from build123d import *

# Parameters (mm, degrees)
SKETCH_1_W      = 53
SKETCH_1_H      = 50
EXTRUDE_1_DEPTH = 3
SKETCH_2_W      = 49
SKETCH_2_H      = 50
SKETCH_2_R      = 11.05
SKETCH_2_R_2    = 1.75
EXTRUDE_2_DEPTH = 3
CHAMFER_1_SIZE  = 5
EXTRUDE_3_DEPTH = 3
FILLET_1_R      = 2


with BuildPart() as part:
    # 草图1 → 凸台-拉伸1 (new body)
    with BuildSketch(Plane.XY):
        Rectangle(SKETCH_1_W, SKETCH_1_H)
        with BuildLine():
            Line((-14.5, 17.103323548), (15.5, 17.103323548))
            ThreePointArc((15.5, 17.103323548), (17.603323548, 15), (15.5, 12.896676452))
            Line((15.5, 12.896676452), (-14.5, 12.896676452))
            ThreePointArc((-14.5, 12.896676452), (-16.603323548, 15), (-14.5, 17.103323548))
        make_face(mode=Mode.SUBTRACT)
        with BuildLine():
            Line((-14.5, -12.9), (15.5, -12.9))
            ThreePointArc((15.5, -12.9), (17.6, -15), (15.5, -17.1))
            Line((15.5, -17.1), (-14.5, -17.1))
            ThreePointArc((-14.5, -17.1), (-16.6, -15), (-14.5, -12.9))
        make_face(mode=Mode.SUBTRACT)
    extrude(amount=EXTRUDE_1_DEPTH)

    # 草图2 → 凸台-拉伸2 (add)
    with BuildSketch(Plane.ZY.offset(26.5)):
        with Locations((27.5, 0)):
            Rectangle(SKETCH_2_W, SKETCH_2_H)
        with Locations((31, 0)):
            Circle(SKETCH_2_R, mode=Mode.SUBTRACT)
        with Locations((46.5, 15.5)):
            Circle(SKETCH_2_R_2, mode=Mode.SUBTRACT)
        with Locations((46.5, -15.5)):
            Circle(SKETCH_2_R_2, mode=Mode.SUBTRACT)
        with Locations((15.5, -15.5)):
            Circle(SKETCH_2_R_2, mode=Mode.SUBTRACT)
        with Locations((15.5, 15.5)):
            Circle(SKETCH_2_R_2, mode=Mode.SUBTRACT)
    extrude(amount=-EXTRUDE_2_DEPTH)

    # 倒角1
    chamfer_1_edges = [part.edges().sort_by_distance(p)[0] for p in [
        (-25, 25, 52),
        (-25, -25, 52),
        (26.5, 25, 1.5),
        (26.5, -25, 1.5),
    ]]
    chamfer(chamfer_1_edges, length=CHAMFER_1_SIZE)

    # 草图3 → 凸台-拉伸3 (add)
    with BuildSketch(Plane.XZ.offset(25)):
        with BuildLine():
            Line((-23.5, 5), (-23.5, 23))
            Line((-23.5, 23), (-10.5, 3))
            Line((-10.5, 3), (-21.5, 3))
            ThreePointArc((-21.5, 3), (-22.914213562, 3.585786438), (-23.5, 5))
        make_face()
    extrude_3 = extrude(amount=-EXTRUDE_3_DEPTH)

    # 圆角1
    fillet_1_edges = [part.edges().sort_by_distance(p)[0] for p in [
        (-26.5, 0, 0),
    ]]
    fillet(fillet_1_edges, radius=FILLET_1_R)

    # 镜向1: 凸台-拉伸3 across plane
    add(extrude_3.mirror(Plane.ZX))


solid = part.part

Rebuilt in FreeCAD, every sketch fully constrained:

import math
import FreeCAD as App
import Part
import Sketcher
Q = App.Units.Quantity


def edges_at(feature, points):
    """Names of the edges that pass closest to the given points."""
    edges = feature.Shape.Edges
    near = lambda p: min(range(len(edges)), key=lambda i: edges[i].distToShape(Part.Vertex(*p))[0])
    return sorted({f"Edge{near(p) + 1}" for p in points})

doc = App.newDocument("Part")
body = doc.addObject("PartDesign::Body", "Body")

sketch1 = doc.addObject("Sketcher::SketchObject", "Sketch")
body.addObject(sketch1)
sketch1.AttachmentSupport = (doc.XY_Plane, [""])
sketch1.MapMode = "FlatFace"
sketch1.addGeometry(Part.LineSegment(App.Vector(-26.5, 25, 0), App.Vector(-26.5, -25, 0)), False)
sketch1.addGeometry(Part.LineSegment(App.Vector(-26.5, -25, 0), App.Vector(26.5, -25, 0)), False)
sketch1.addGeometry(Part.LineSegment(App.Vector(26.5, -25, 0), App.Vector(26.5, 25, 0)), False)
sketch1.addGeometry(Part.LineSegment(App.Vector(26.5, 25, 0), App.Vector(-26.5, 25, 0)), False)
sketch1.addGeometry(Part.ArcOfCircle(Part.Circle(App.Vector(-14.5, -15, 0), App.Vector(0, 0, 1), 2.1), math.radians(90), math.radians(270)), False)
sketch1.addGeometry(Part.LineSegment(App.Vector(-14.5, -12.9, 0), App.Vector(15.5, -12.9, 0)), False)
sketch1.addGeometry(Part.ArcOfCircle(Part.Circle(App.Vector(15.5, -15, 0), App.Vector(0, 0, 1), 2.1), math.radians(-90), math.radians(90)), False)
sketch1.addGeometry(Part.LineSegment(App.Vector(15.5, -17.1, 0), App.Vector(-14.5, -17.1, 0)), False)
sketch1.addGeometry(Part.ArcOfCircle(Part.Circle(App.Vector(-14.5, 15, 0), App.Vector(0, 0, 1), 2.103324), math.radians(90), math.radians(270)), False)
sketch1.addGeometry(Part.LineSegment(App.Vector(-14.5, 17.103324, 0), App.Vector(15.5, 17.103324, 0)), False)
sketch1.addGeometry(Part.ArcOfCircle(Part.Circle(App.Vector(15.5, 15, 0), App.Vector(0, 0, 1), 2.103324), math.radians(-90), math.radians(90)), False)
sketch1.addGeometry(Part.LineSegment(App.Vector(15.5, 12.896676, 0), App.Vector(-14.5, 12.896676, 0)), False)
sketch1.addConstraint(Sketcher.Constraint("Coincident", 0, 2, 1, 1))
sketch1.addConstraint(Sketcher.Constraint("Coincident", 1, 2, 2, 1))
sketch1.addConstraint(Sketcher.Constraint("Coincident", 2, 2, 3, 1))
sketch1.addConstraint(Sketcher.Constraint("Coincident", 3, 2, 0, 1))
sketch1.addConstraint(Sketcher.Constraint("Tangent", 4, 1, 5, 1))
sketch1.addConstraint(Sketcher.Constraint("Tangent", 5, 2, 6, 2))
sketch1.addConstraint(Sketcher.Constraint("Tangent", 6, 1, 7, 1))
sketch1.addConstraint(Sketcher.Constraint("Tangent", 7, 2, 4, 2))
sketch1.addConstraint(Sketcher.Constraint("Tangent", 8, 1, 9, 1))
sketch1.addConstraint(Sketcher.Constraint("Tangent", 9, 2, 10, 2))
sketch1.addConstraint(Sketcher.Constraint("Tangent", 10, 1, 11, 1))
sketch1.addConstraint(Sketcher.Constraint("Tangent", 11, 2, 8, 2))
sketch1.addConstraint(Sketcher.Constraint("Vertical", 0))
sketch1.addConstraint(Sketcher.Constraint("Horizontal", 1))
sketch1.addConstraint(Sketcher.Constraint("Vertical", 2))
sketch1.addConstraint(Sketcher.Constraint("Horizontal", 3))
sketch1.addConstraint(Sketcher.Constraint("Horizontal", 5))
sketch1.addConstraint(Sketcher.Constraint("Horizontal", 7))
sketch1.addConstraint(Sketcher.Constraint("Horizontal", 9))
sketch1.addConstraint(Sketcher.Constraint("Horizontal", 11))
sketch1.addConstraint(Sketcher.Constraint("Symmetric", 0, 2, 2, 2, -1, 1))
sketch1.addConstraint(Sketcher.Constraint("Symmetric", 4, 3, 8, 3, -1))
sketch1.addConstraint(Sketcher.Constraint("Vertical", 6, 3, 10, 3))
sketch1.addConstraint(Sketcher.Constraint("Radius", 4, Q("2.1 mm")))
sketch1.addConstraint(Sketcher.Constraint("DistanceX", 1, 1, 1, 2, Q("53 mm")))
sketch1.addConstraint(Sketcher.Constraint("DistanceX", 5, 1, 5, 2, Q("30 mm")))
sketch1.addConstraint(Sketcher.Constraint("DistanceY", 0, 2, 0, 1, Q("50 mm")))
sketch1.addConstraint(Sketcher.Constraint("DistanceY", 4, 3, -1, 1, Q("15 mm")))
sketch1.addConstraint(Sketcher.Constraint("DistanceX", 0, 2, 4, 3, Q("12 mm")))
sketch1.addConstraint(Sketcher.Constraint("Radius", 8, Q("2.103324 mm")))
pad1 = doc.addObject("PartDesign::Pad", "Pad")
body.addObject(pad1)
pad1.Profile = sketch1
pad1.Length = 3

sketch2 = doc.addObject("Sketcher::SketchObject", "Sketch001")
body.addObject(sketch2)
sketch2.AttachmentSupport = (doc.YZ_Plane, [""])
sketch2.MapMode = "FlatFace"
sketch2.AttachmentOffset = App.Placement(App.Vector(0, 0, -26.5), App.Rotation())
sketch2.addGeometry(Part.LineSegment(App.Vector(25, 3, 0), App.Vector(-25, 3, 0)), False)
sketch2.addGeometry(Part.LineSegment(App.Vector(-25, 3, 0), App.Vector(-25, 52, 0)), False)
sketch2.addGeometry(Part.LineSegment(App.Vector(-25, 52, 0), App.Vector(25, 52, 0)), False)
sketch2.addGeometry(Part.LineSegment(App.Vector(25, 52, 0), App.Vector(25, 3, 0)), False)
sketch2.addGeometry(Part.Circle(App.Vector(-15.5, 15.5, 0), App.Vector(0, 0, 1), 1.75), False)
sketch2.addGeometry(Part.Circle(App.Vector(-15.5, 46.5, 0), App.Vector(0, 0, 1), 1.75), False)
sketch2.addGeometry(Part.Circle(App.Vector(15.5, 15.5, 0), App.Vector(0, 0, 1), 1.75), False)
sketch2.addGeometry(Part.Circle(App.Vector(0, 31, 0), App.Vector(0, 0, 1), 11.05), False)
sketch2.addGeometry(Part.Circle(App.Vector(15.5, 46.5, 0), App.Vector(0, 0, 1), 1.75), False)
sketch2.addConstraint(Sketcher.Constraint("Coincident", 0, 2, 1, 1))
sketch2.addConstraint(Sketcher.Constraint("Coincident", 1, 2, 2, 1))
sketch2.addConstraint(Sketcher.Constraint("Coincident", 2, 2, 3, 1))
sketch2.addConstraint(Sketcher.Constraint("Coincident", 3, 2, 0, 1))
sketch2.addConstraint(Sketcher.Constraint("Horizontal", 0))
sketch2.addConstraint(Sketcher.Constraint("Vertical", 1))
sketch2.addConstraint(Sketcher.Constraint("Horizontal", 2))
sketch2.addConstraint(Sketcher.Constraint("Vertical", 3))
sketch2.addConstraint(Sketcher.Constraint("Equal", 4, 5))
sketch2.addConstraint(Sketcher.Constraint("Equal", 5, 6))
sketch2.addConstraint(Sketcher.Constraint("Equal", 6, 8))
sketch2.addConstraint(Sketcher.Constraint("Symmetric", 4, 3, 6, 3, -2))
sketch2.addConstraint(Sketcher.Constraint("Symmetric", 5, 3, 8, 3, -2))
sketch2.addConstraint(Sketcher.Constraint("PointOnObject", 7, 3, -2))
sketch2.addConstraint(Sketcher.Constraint("Vertical", 4, 3, 5, 3))
sketch2.addConstraint(Sketcher.Constraint("Diameter", 4, Q("3.5 mm")))
sketch2.addConstraint(Sketcher.Constraint("Diameter", 7, Q("22.1 mm")))
sketch2.addConstraint(Sketcher.Constraint("DistanceX", 0, 2, 0, 1, Q("50 mm")))
sketch2.addConstraint(Sketcher.Constraint("DistanceY", 1, 1, 1, 2, Q("49 mm")))
sketch2.addConstraint(Sketcher.Constraint("DistanceY", -1, 1, 7, 3, Q("31 mm")))
sketch2.addConstraint(Sketcher.Constraint("DistanceX", 0, 2, -1, 1, Q("25 mm")))
sketch2.addConstraint(Sketcher.Constraint("DistanceY", -1, 1, 0, 2, Q("3 mm")))
sketch2.addConstraint(Sketcher.Constraint("DistanceY", 4, 3, 5, 3, Q("31 mm")))
sketch2.addConstraint(Sketcher.Constraint("DistanceX", 4, 3, 6, 3, Q("31 mm")))
sketch2.addConstraint(Sketcher.Constraint("DistanceY", -1, 1, 4, 3, Q("15.5 mm")))
pad2 = doc.addObject("PartDesign::Pad", "Pad001")
body.addObject(pad2)
pad2.Profile = sketch2
pad2.Length = 3
doc.recompute()

chamfer = doc.addObject("PartDesign::Chamfer", "Chamfer")
body.addObject(chamfer)
chamfer.Base = (pad2, edges_at(pad2, [
    (-25, 25, 52),
    (-25, -25, 52),
    (26.5, 25, 1.5),
    (26.5, -25, 1.5),
]))
chamfer.Size = 5

sketch3 = doc.addObject("Sketcher::SketchObject", "Sketch002")
body.addObject(sketch3)
sketch3.AttachmentSupport = (doc.XZ_Plane, [""])
sketch3.MapMode = "FlatFace"
sketch3.AttachmentOffset = App.Placement(App.Vector(0, 0, 25), App.Rotation())
sketch3.addGeometry(Part.LineSegment(App.Vector(-23.5, 23, 0), App.Vector(-23.5, 5, 0)), False)
sketch3.addGeometry(Part.ArcOfCircle(Part.Circle(App.Vector(-21.5, 5, 0), App.Vector(0, 0, 1), 2), math.radians(-180), math.radians(-90)), False)
sketch3.addGeometry(Part.LineSegment(App.Vector(-21.5, 3, 0), App.Vector(-10.5, 3, 0)), False)
sketch3.addGeometry(Part.LineSegment(App.Vector(-10.5, 3, 0), App.Vector(-23.5, 23, 0)), False)
sketch3.addConstraint(Sketcher.Constraint("Tangent", 0, 2, 1, 1))
sketch3.addConstraint(Sketcher.Constraint("Tangent", 1, 2, 2, 1))
sketch3.addConstraint(Sketcher.Constraint("Coincident", 2, 2, 3, 1))
sketch3.addConstraint(Sketcher.Constraint("Coincident", 3, 2, 0, 1))
sketch3.addConstraint(Sketcher.Constraint("Vertical", 0))
sketch3.addConstraint(Sketcher.Constraint("Horizontal", 2))
sketch3.addConstraint(Sketcher.Constraint("Radius", 1, Q("2 mm")))
sketch3.addConstraint(Sketcher.Constraint("DistanceX", 2, 1, 2, 2, Q("11 mm")))
sketch3.addConstraint(Sketcher.Constraint("DistanceY", 0, 2, 0, 1, Q("18 mm")))
sketch3.addConstraint(Sketcher.Constraint("DistanceY", -1, 1, 1, 3, Q("5 mm")))
sketch3.addConstraint(Sketcher.Constraint("DistanceX", 1, 3, -1, 1, Q("21.5 mm")))
pad3 = doc.addObject("PartDesign::Pad", "Pad002")
body.addObject(pad3)
pad3.Profile = sketch3
pad3.Length = 3
pad3.Reversed = True
doc.recompute()

fillet = doc.addObject("PartDesign::Fillet", "Fillet")
body.addObject(fillet)
fillet.Base = (pad3, edges_at(pad3, [(-26.5, 0, 0)]))
fillet.Radius = 2
doc.recompute()

mirrored = doc.addObject("PartDesign::Mirrored", "Mirrored")
body.addObject(mirrored)
mirrored.Originals = [pad3]
mirrored.MirrorPlane = (doc.XZ_Plane, [""])
body.Tip = mirrored

doc.recompute()
